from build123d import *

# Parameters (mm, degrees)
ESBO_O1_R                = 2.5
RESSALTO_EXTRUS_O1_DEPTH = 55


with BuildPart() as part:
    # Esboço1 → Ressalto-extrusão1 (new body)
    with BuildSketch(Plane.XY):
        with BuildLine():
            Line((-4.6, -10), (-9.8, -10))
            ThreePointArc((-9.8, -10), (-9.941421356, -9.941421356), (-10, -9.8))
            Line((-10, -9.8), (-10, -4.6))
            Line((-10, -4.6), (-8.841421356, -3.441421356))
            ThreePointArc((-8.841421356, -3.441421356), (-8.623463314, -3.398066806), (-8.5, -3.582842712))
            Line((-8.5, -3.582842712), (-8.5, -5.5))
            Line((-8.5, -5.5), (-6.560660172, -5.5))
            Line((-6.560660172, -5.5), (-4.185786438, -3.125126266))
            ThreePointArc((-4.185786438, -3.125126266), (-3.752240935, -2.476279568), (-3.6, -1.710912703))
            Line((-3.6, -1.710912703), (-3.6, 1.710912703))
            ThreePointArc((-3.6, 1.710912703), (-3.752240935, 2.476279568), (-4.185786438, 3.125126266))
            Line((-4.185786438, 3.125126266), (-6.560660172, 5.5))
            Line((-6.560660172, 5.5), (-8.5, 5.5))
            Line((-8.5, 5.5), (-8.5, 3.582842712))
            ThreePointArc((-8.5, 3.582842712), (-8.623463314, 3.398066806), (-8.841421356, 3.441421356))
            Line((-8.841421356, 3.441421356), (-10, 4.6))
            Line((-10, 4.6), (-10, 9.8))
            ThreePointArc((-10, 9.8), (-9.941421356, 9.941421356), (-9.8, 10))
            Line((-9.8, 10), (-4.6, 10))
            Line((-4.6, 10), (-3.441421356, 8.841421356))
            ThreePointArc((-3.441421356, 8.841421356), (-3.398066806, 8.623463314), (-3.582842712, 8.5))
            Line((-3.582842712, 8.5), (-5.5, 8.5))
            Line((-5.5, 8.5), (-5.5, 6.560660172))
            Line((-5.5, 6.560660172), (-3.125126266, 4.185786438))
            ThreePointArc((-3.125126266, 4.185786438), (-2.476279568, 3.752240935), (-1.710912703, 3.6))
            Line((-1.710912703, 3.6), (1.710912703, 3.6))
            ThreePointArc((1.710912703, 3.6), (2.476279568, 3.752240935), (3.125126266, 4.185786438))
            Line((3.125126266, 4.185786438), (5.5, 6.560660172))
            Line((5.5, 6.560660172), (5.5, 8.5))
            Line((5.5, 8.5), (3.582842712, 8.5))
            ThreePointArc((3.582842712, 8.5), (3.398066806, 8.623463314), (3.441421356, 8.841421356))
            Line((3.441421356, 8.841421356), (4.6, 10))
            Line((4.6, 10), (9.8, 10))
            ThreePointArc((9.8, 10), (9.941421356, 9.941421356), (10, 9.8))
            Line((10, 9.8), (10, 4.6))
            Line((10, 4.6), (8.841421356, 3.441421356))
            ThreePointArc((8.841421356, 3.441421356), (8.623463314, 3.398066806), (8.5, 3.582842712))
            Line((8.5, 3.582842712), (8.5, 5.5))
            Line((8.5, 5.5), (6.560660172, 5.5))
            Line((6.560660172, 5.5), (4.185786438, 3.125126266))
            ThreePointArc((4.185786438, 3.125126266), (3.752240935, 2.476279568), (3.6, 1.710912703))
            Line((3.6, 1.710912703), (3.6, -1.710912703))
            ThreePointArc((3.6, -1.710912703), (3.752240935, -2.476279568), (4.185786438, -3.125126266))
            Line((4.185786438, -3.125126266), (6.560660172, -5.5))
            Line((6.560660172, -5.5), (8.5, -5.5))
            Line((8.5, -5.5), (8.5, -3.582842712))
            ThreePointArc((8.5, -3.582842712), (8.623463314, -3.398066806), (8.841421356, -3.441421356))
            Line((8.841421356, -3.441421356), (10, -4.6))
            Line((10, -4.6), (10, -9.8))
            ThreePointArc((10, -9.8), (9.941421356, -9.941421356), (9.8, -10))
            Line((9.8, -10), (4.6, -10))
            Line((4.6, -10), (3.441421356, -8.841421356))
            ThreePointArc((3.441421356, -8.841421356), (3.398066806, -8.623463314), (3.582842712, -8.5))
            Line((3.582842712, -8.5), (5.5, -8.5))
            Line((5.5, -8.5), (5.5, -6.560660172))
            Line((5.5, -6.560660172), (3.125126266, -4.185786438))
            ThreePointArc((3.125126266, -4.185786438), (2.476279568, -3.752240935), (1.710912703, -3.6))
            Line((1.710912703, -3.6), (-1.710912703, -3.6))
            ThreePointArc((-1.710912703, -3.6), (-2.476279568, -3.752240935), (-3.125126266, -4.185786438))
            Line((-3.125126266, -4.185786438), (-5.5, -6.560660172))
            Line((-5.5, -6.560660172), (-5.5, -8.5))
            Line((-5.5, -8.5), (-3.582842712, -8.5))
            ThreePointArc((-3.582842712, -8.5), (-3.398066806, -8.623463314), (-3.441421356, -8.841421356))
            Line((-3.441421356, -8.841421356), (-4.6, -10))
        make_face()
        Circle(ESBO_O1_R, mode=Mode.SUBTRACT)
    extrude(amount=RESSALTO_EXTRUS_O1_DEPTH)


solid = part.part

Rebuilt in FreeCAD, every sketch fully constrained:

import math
import FreeCAD as App
import Part
import Sketcher

V = App.Vector

doc = App.newDocument("Part")
body = doc.addObject("PartDesign::Body", "Body")

sketch1 = doc.addObject("Sketcher::SketchObject", "Sketch")
body.addObject(sketch1)
sketch1.AttachmentSupport = (doc.XY_Plane, [""])
sketch1.MapMode = "FlatFace"
sketch1.addGeometry(Part.LineSegment(V(-9.8, -10, 0), V(-4.6, -10, 0)), False)
sketch1.addGeometry(Part.LineSegment(V(-4.6, -10, 0), V(-3.44, -8.84, 0)), False)
sketch1.addGeometry(Part.ArcOfCircle(Part.Circle(V(-3.58, -8.7, 0), V(0, 0, 1), 0.2), math.radians(-45), math.radians(90)), False)
sketch1.addGeometry(Part.LineSegment(V(-3.58, -8.5, 0), V(-5.5, -8.5, 0)), False)
sketch1.addGeometry(Part.LineSegment(V(-5.5, -8.5, 0), V(-5.5, -6.56, 0)), False)
sketch1.addGeometry(Part.LineSegment(V(-5.5, -6.56, 0), V(-3.13, -4.19, 0)), False)
sketch1.addGeometry(Part.ArcOfCircle(Part.Circle(V(-1.71, -5.6, 0), V(0, 0, 1), 2), math.radians(90), math.radians(135)), False)
sketch1.addGeometry(Part.LineSegment(V(-1.71, -3.6, 0), V(1.71, -3.6, 0)), False)
sketch1.addGeometry(Part.ArcOfCircle(Part.Circle(V(1.71, -5.6, 0), V(0, 0, 1), 2), math.radians(45), math.radians(90)), False)
sketch1.addGeometry(Part.LineSegment(V(3.13, -4.19, 0), V(5.5, -6.56, 0)), False)
sketch1.addGeometry(Part.LineSegment(V(5.5, -6.56, 0), V(5.5, -8.5, 0)), False)
sketch1.addGeometry(Part.LineSegment(V(5.5, -8.5, 0), V(3.58, -8.5, 0)), False)
sketch1.addGeometry(Part.ArcOfCircle(Part.Circle(V(3.58, -8.7, 0), V(0, 0, 1), 0.2), math.radians(90), math.radians(225)), False)
sketch1.addGeometry(Part.LineSegment(V(3.44, -8.84, 0), V(4.6, -10, 0)), False)
sketch1.addGeometry(Part.LineSegment(V(4.6, -10, 0), V(9.8, -10, 0)), False)
sketch1.addGeometry(Part.ArcOfCircle(Part.Circle(V(9.8, -9.8, 0), V(0, 0, 1), 0.2), math.radians(-90), math.radians(0)), False)
sketch1.addGeometry(Part.LineSegment(V(10, -9.8, 0), V(10, -4.6, 0)), False)
sketch1.addGeometry(Part.LineSegment(V(10, -4.6, 0), V(8.84, -3.44, 0)), False)
sketch1.addGeometry(Part.ArcOfCircle(Part.Circle(V(8.7, -3.58, 0), V(0, 0, 1), 0.2), math.radians(45), math.radians(180)), False)
sketch1.addGeometry(Part.LineSegment(V(8.5, -3.58, 0), V(8.5, -5.5, 0)), False)
sketch1.addGeometry(Part.LineSegment(V(8.5, -5.5, 0), V(6.56, -5.5, 0)), False)
sketch1.addGeometry(Part.LineSegment(V(6.56, -5.5, 0), V(4.19, -3.13, 0)), False)
sketch1.addGeometry(Part.ArcOfCircle(Part.Circle(V(5.6, -1.71, 0), V(0, 0, 1), 2), math.radians(180), math.radians(225)), False)
sketch1.addGeometry(Part.LineSegment(V(3.6, -1.71, 0), V(3.6, 1.71, 0)), False)
sketch1.addGeometry(Part.ArcOfCircle(Part.Circle(V(5.6, 1.71, 0), V(0, 0, 1), 2), math.radians(135), math.radians(180)), False)
sketch1.addGeometry(Part.LineSegment(V(4.19, 3.13, 0), V(6.56, 5.5, 0)), False)
sketch1.addGeometry(Part.LineSegment(V(6.56, 5.5, 0), V(8.5, 5.5, 0)), False)
sketch1.addGeometry(Part.LineSegment(V(8.5, 5.5, 0), V(8.5, 3.58, 0)), False)
sketch1.addGeometry(Part.ArcOfCircle(Part.Circle(V(8.7, 3.58, 0), V(0, 0, 1), 0.2), math.radians(-180), math.radians(-45)), False)
sketch1.addGeometry(Part.LineSegment(V(8.84, 3.44, 0), V(10, 4.6, 0)), False)
sketch1.addGeometry(Part.LineSegment(V(10, 4.6, 0), V(10, 9.8, 0)), False)
sketch1.addGeometry(Part.ArcOfCircle(Part.Circle(V(9.8, 9.8, 0), V(0, 0, 1), 0.2), math.radians(0), math.radians(90)), False)
sketch1.addGeometry(Part.LineSegment(V(9.8, 10, 0), V(4.6, 10, 0)), False)
sketch1.addGeometry(Part.LineSegment(V(4.6, 10, 0), V(3.44, 8.84, 0)), False)
sketch1.addGeometry(Part.ArcOfCircle(Part.Circle(V(3.58, 8.7, 0), V(0, 0, 1), 0.2), math.radians(135), math.radians(270)), False)
sketch1.addGeometry(Part.LineSegment(V(3.58, 8.5, 0), V(5.5, 8.5, 0)), False)
sketch1.addGeometry(Part.LineSegment(V(5.5, 8.5, 0), V(5.5, 6.56, 0)), False)
sketch1.addGeometry(Part.LineSegment(V(5.5, 6.56, 0), V(3.13, 4.19, 0)), False)
sketch1.addGeometry(Part.ArcOfCircle(Part.Circle(V(1.71, 5.6, 0), V(0, 0, 1), 2), math.radians(-90), math.radians(-45)), False)
sketch1.addGeometry(Part.LineSegment(V(1.71, 3.6, 0), V(-1.71, 3.6, 0)), False)
sketch1.addGeometry(Part.ArcOfCircle(Part.Circle(V(-1.71, 5.6, 0), V(0, 0, 1), 2), math.radians(-135), math.radians(-90)), False)
sketch1.addGeometry(Part.LineSegment(V(-3.13, 4.19, 0), V(-5.5, 6.56, 0)), False)
sketch1.addGeometry(Part.LineSegment(V(-5.5, 6.56, 0), V(-5.5, 8.5, 0)), False)
sketch1.addGeometry(Part.LineSegment(V(-5.5, 8.5, 0), V(-3.58, 8.5, 0)), False)
sketch1.addGeometry(Part.ArcOfCircle(Part.Circle(V(-3.58, 8.7, 0), V(0, 0, 1), 0.2), math.radians(-90), math.radians(45)), False)
sketch1.addGeometry(Part.LineSegment(V(-3.44, 8.84, 0), V(-4.6, 10, 0)), False)
sketch1.addGeometry(Part.LineSegment(V(-4.6, 10, 0), V(-9.8, 10, 0)), False)
sketch1.addGeometry(Part.ArcOfCircle(Part.Circle(V(-9.8, 9.8, 0), V(0, 0, 1), 0.2), math.radians(90), math.radians(180)), False)
sketch1.addGeometry(Part.LineSegment(V(-10, 9.8, 0), V(-10, 4.6, 0)), False)
sketch1.addGeometry(Part.LineSegment(V(-10, 4.6, 0), V(-8.84, 3.44, 0)), False)
sketch1.addGeometry(Part.ArcOfCircle(Part.Circle(V(-8.7, 3.58, 0), V(0, 0, 1), 0.2), math.radians(-135), math.radians(0)), False)
sketch1.addGeometry(Part.LineSegment(V(-8.5, 3.58, 0), V(-8.5, 5.5, 0)), False)
sketch1.addGeometry(Part.LineSegment(V(-8.5, 5.5, 0), V(-6.56, 5.5, 0)), False)
sketch1.addGeometry(Part.LineSegment(V(-6.56, 5.5, 0), V(-4.19, 3.13, 0)), False)
sketch1.addGeometry(Part.ArcOfCircle(Part.Circle(V(-5.6, 1.71, 0), V(0, 0, 1), 2), math.radians(0), math.radians(45)), False)
sketch1.addGeometry(Part.LineSegment(V(-3.6, 1.71, 0), V(-3.6, -1.71, 0)), False)
sketch1.addGeometry(Part.ArcOfCircle(Part.Circle(V(-5.6, -1.71, 0), V(0, 0, 1), 2), math.radians(-45), math.radians(0)), False)
sketch1.addGeometry(Part.LineSegment(V(-4.19, -3.13, 0), V(-6.56, -5.5, 0)), False)
sketch1.addGeometry(Part.LineSegment(V(-6.56, -5.5, 0), V(-8.5, -5.5, 0)), False)
sketch1.addGeometry(Part.LineSegment(V(-8.5, -5.5, 0), V(-8.5, -3.58, 0)), False)
sketch1.addGeometry(Part.ArcOfCircle(Part.Circle(V(-8.7, -3.58, 0), V(0, 0, 1), 0.2), math.radians(0), math.radians(135)), False)
sketch1.addGeometry(Part.LineSegment(V(-8.84, -3.44, 0), V(-10, -4.6, 0)), False)
sketch1.addGeometry(Part.LineSegment(V(-10, -4.6, 0), V(-10, -9.8, 0)), False)
sketch1.addGeometry(Part.ArcOfCircle(Part.Circle(V(-9.8, -9.8, 0), V(0, 0, 1), 0.2), math.radians(-180), math.radians(-90)), False)
sketch1.addGeometry(Part.Circle(V(0, 0, 0), V(0, 0, 1), 2.5), False)
sketch1.addConstraint(Sketcher.Constraint("Coincident", 0, 2, 1, 1))
sketch1.addConstraint(Sketcher.Constraint("Tangent", 1, 2, 2, 1))
sketch1.addConstraint(Sketcher.Constraint("Tangent", 2, 2, 3, 1))
sketch1.addConstraint(Sketcher.Constraint("Coincident", 3, 2, 4, 1))
sketch1.addConstraint(Sketcher.Constraint("Coincident", 4, 2, 5, 1))
sketch1.addConstraint(Sketcher.Constraint("Tangent", 5, 2, 6, 2))
sketch1.addConstraint(Sketcher.Constraint("Tangent", 6, 1, 7, 1))
sketch1.addConstraint(Sketcher.Constraint("Tangent", 7, 2, 8, 2))
sketch1.addConstraint(Sketcher.Constraint("Tangent", 8, 1, 9, 1))
sketch1.addConstraint(Sketcher.Constraint("Coincident", 9, 2, 10, 1))
sketch1.addConstraint(Sketcher.Constraint("Coincident", 10, 2, 11, 1))
sketch1.addConstraint(Sketcher.Constraint("Tangent", 11, 2, 12, 1))
sketch1.addConstraint(Sketcher.Constraint("Tangent", 12, 2, 13, 1))
sketch1.addConstraint(Sketcher.Constraint("Coincident", 13, 2, 14, 1))
sketch1.addConstraint(Sketcher.Constraint("Tangent", 14, 2, 15, 1))
sketch1.addConstraint(Sketcher.Constraint("Tangent", 15, 2, 16, 1))
sketch1.addConstraint(Sketcher.Constraint("Coincident", 16, 2, 17, 1))
sketch1.addConstraint(Sketcher.Constraint("Tangent", 17, 2, 18, 1))
sketch1.addConstraint(Sketcher.Constraint("Tangent", 18, 2, 19, 1))
sketch1.addConstraint(Sketcher.Constraint("Coincident", 19, 2, 20, 1))
sketch1.addConstraint(Sketcher.Constraint("Coincident", 20, 2, 21, 1))
sketch1.addConstraint(Sketcher.Constraint("Tangent", 21, 2, 22, 2))
sketch1.addConstraint(Sketcher.Constraint("Tangent", 22, 1, 23, 1))
sketch1.addConstraint(Sketcher.Constraint("Tangent", 23, 2, 24, 2))
sketch1.addConstraint(Sketcher.Constraint("Tangent", 24, 1, 25, 1))
sketch1.addConstraint(Sketcher.Constraint("Coincident", 25, 2, 26, 1))
sketch1.addConstraint(Sketcher.Constraint("Coincident", 26, 2, 27, 1))
sketch1.addConstraint(Sketcher.Constraint("Tangent", 27, 2, 28, 1))
sketch1.addConstraint(Sketcher.Constraint("Tangent", 28, 2, 29, 1))
sketch1.addConstraint(Sketcher.Constraint("Coincident", 29, 2, 30, 1))
sketch1.addConstraint(Sketcher.Constraint("Tangent", 30, 2, 31, 1))
sketch1.addConstraint(Sketcher.Constraint("Tangent", 31, 2, 32, 1))
sketch1.addConstraint(Sketcher.Constraint("Coincident", 32, 2, 33, 1))
sketch1.addConstraint(Sketcher.Constraint("Tangent", 33, 2, 34, 1))
sketch1.addConstraint(Sketcher.Constraint("Tangent", 34, 2, 35, 1))
sketch1.addConstraint(Sketcher.Constraint("Coincident", 35, 2, 36, 1))
sketch1.addConstraint(Sketcher.Constraint("Coincident", 36, 2, 37, 1))
sketch1.addConstraint(Sketcher.Constraint("Tangent", 37, 2, 38, 2))
sketch1.addConstraint(Sketcher.Constraint("Tangent", 38, 1, 39, 1))
sketch1.addConstraint(Sketcher.Constraint("Tangent", 39, 2, 40, 2))
sketch1.addConstraint(Sketcher.Constraint("Tangent", 40, 1, 41, 1))
sketch1.addConstraint(Sketcher.Constraint("Coincident", 41, 2, 42, 1))
sketch1.addConstraint(Sketcher.Constraint("Coincident", 42, 2, 43, 1))
sketch1.addConstraint(Sketcher.Constraint("Tangent", 43, 2, 44, 1))
sketch1.addConstraint(Sketcher.Constraint("Tangent", 44, 2, 45, 1))
sketch1.addConstraint(Sketcher.Constraint("Coincident", 45, 2, 46, 1))
sketch1.addConstraint(Sketcher.Constraint("Tangent", 46, 2, 47, 1))
sketch1.addConstraint(Sketcher.Constraint("Tangent", 47, 2, 48, 1))
sketch1.addConstraint(Sketcher.Constraint("Coincident", 48, 2, 49, 1))
sketch1.addConstraint(Sketcher.Constraint("Tangent", 49, 2, 50, 1))
sketch1.addConstraint(Sketcher.Constraint("Tangent", 50, 2, 51, 1))
sketch1.addConstraint(Sketcher.Constraint("Coincident", 51, 2, 52, 1))
sketch1.addConstraint(Sketcher.Constraint("Coincident", 52, 2, 53, 1))
sketch1.addConstraint(Sketcher.Constraint("Tangent", 53, 2, 54, 2))
sketch1.addConstraint(Sketcher.Constraint("Tangent", 54, 1, 55, 1))
sketch1.addConstraint(Sketcher.Constraint("Tangent", 55, 2, 56, 2))
sketch1.addConstraint(Sketcher.Constraint("Tangent", 56, 1, 57, 1))
sketch1.addConstraint(Sketcher.Constraint("Coincident", 57, 2, 58, 1))
sketch1.addConstraint(Sketcher.Constraint("Coincident", 58, 2, 59, 1))
sketch1.addConstraint(Sketcher.Constraint("Tangent", 59, 2, 60, 1))
sketch1.addConstraint(Sketcher.Constraint("Tangent", 60, 2, 61, 1))
sketch1.addConstraint(Sketcher.Constraint("Coincident", 61, 2, 62, 1))
sketch1.addConstraint(Sketcher.Constraint("Tangent", 62, 2, 63, 1))
sketch1.addConstraint(Sketcher.Constraint("Tangent", 63, 2, 0, 1))
sketch1.addConstraint(Sketcher.Constraint("Horizontal", 0))
sketch1.addConstraint(Sketcher.Constraint("Horizontal", 3))
sketch1.addConstraint(Sketcher.Constraint("Vertical", 4))
sketch1.addConstraint(Sketcher.Constraint("Horizontal", 7))
sketch1.addConstraint(Sketcher.Constraint("Vertical", 10))
sketch1.addConstraint(Sketcher.Constraint("Horizontal", 11))
sketch1.addConstraint(Sketcher.Constraint("Horizontal", 14))
sketch1.addConstraint(Sketcher.Constraint("Vertical", 16))
sketch1.addConstraint(Sketcher.Constraint("Vertical", 19))
sketch1.addConstraint(Sketcher.Constraint("Horizontal", 20))
sketch1.addConstraint(Sketcher.Constraint("Vertical", 23))
sketch1.addConstraint(Sketcher.Constraint("Horizontal", 26))
sketch1.addConstraint(Sketcher.Constraint("Vertical", 27))
sketch1.addConstraint(Sketcher.Constraint("Vertical", 30))
sketch1.addConstraint(Sketcher.Constraint("Horizontal", 32))
sketch1.addConstraint(Sketcher.Constraint("Horizontal", 35))
sketch1.addConstraint(Sketcher.Constraint("Vertical", 36))
sketch1.addConstraint(Sketcher.Constraint("Horizontal", 39))
sketch1.addConstraint(Sketcher.Constraint("Vertical", 42))
sketch1.addConstraint(Sketcher.Constraint("Horizontal", 43))
sketch1.addConstraint(Sketcher.Constraint("Horizontal", 46))
sketch1.addConstraint(Sketcher.Constraint("Vertical", 48))
sketch1.addConstraint(Sketcher.Constraint("Vertical", 51))
sketch1.addConstraint(Sketcher.Constraint("Horizontal", 52))
sketch1.addConstraint(Sketcher.Constraint("Vertical", 55))
sketch1.addConstraint(Sketcher.Constraint("Horizontal", 58))
sketch1.addConstraint(Sketcher.Constraint("Vertical", 59))
sketch1.addConstraint(Sketcher.Constraint("Vertical", 62))
sketch1.addConstraint(Sketcher.Constraint("Coincident", 64, 3, -1, 1))
sketch1.addConstraint(Sketcher.Constraint("Equal", 6, 8))
sketch1.addConstraint(Sketcher.Constraint("Equal", 2, 12))
sketch1.addConstraint(Sketcher.Constraint("Equal", 12, 15))
sketch1.addConstraint(Sketcher.Constraint("Equal", 15, 18))
sketch1.addConstraint(Sketcher.Constraint("Equal", 8, 22))
sketch1.addConstraint(Sketcher.Constraint("Equal", 22, 24))
sketch1.addConstraint(Sketcher.Constraint("Equal", 18, 28))
sketch1.addConstraint(Sketcher.Constraint("Equal", 28, 31))
sketch1.addConstraint(Sketcher.Constraint("Equal", 31, 34))
sketch1.addConstraint(Sketcher.Constraint("Equal", 24, 38))
sketch1.addConstraint(Sketcher.Constraint("Equal", 38, 40))
sketch1.addConstraint(Sketcher.Constraint("Equal", 34, 44))
sketch1.addConstraint(Sketcher.Constraint("Equal", 44, 47))
sketch1.addConstraint(Sketcher.Constraint("Equal", 47, 50))
sketch1.addConstraint(Sketcher.Constraint("Equal", 40, 54))
sketch1.addConstraint(Sketcher.Constraint("Equal", 54, 56))
sketch1.addConstraint(Sketcher.Constraint("Equal", 50, 60))
sketch1.addConstraint(Sketcher.Constraint("Equal", 60, 63))
sketch1.addConstraint(Sketcher.Constraint("Symmetric", 2, 3, 34, 3, -1, 1))
sketch1.addConstraint(Sketcher.Constraint("Symmetric", 6, 3, 38, 3, -1, 1))
sketch1.addConstraint(Sketcher.Constraint("Symmetric", 12, 3, 44, 3, -1, 1))
sketch1.addConstraint(Sketcher.Constraint("Symmetric", 15, 3, 47, 3, -1, 1))
sketch1.addConstraint(Sketcher.Constraint("Symmetric", 18, 3, 50, 3, -1, 1))
sketch1.addConstraint(Sketcher.Constraint("Symmetric", 22, 3, 54, 3, -1, 1))
sketch1.addConstraint(Sketcher.Constraint("Symmetric", 28, 3, 60, 3, -1, 1))
sketch1.addConstraint(Sketcher.Constraint("Symmetric", 31, 3, 63, 3, -1, 1))
sketch1.addConstraint(Sketcher.Constraint("Symmetric", 4, 2, 36, 2, -1, 1))
sketch1.addConstraint(Sketcher.Constraint("Symmetric", 8, 1, 40, 1, -1, 1))
sketch1.addConstraint(Sketcher.Constraint("Symmetric", 20, 2, 52, 2, -1, 1))
sketch1.addConstraint(Sketcher.Constraint("Symmetric", 24, 1, 56, 1, -1, 1))
sketch1.addConstraint(Sketcher.Constraint("Symmetric", 2, 3, 12, 3, -2))
sketch1.addConstraint(Sketcher.Constraint("Symmetric", 31, 3, 47, 3, -2))
sketch1.addConstraint(Sketcher.Constraint("Symmetric", 28, 3, 50, 3, -2))
sketch1.addConstraint(Sketcher.Constraint("Symmetric", 5, 2, 8, 1, -2))
sketch1.addConstraint(Sketcher.Constraint("Symmetric", 25, 2, 52, 2, -2))
sketch1.addConstraint(Sketcher.Constraint("Parallel", 1, 5))
sketch1.addConstraint(Sketcher.Constraint("Perpendicular", 5, 9))
sketch1.addConstraint(Sketcher.Constraint("Parallel", 9, 13))
sketch1.addConstraint(Sketcher.Constraint("Parallel", 13, 17))
sketch1.addConstraint(Sketcher.Constraint("Parallel", 17, 21))
sketch1.addConstraint(Sketcher.Constraint("Perpendicular", 21, 25))
sketch1.addConstraint(Sketcher.Constraint("Parallel", 25, 29))
sketch1.addConstraint(Sketcher.Constraint("Parallel", 29, 33))
sketch1.addConstraint(Sketcher.Constraint("Parallel", 41, 45))
sketch1.addConstraint(Sketcher.Constraint("Parallel", 45, 49))
sketch1.addConstraint(Sketcher.Constraint("Parallel", 57, 61))
sketch1.addConstraint(Sketcher.Constraint("Horizontal", 4, 2, 9, 2))
sketch1.addConstraint(Sketcher.Constraint("Horizontal", 36, 2, 41, 2))
sketch1.addConstraint(Sketcher.Constraint("Horizontal", 20, 2, 57, 2))
sketch1.addConstraint(Sketcher.Constraint("Equal", 58, 4))
sketch1.addConstraint(Sketcher.Constraint("Equal", 46, 16))
sketch1.addConstraint(Sketcher.Constraint("Equal", 43, 19))
sketch1.addConstraint(Sketcher.Constraint("Equal", 39, 23))
sketch1.addConstraint(Sketcher.Constraint("Equal", 13, 17))
sketch1.addConstraint(Sketcher.Constraint("Equal", 9, 21))
sketch1.addConstraint(Sketcher.Constraint("Diameter", 64, 5.0))
sketch1.addConstraint(Sketcher.Constraint("Radius", 6, 2.0))
sketch1.addConstraint(Sketcher.Constraint("Radius", 2, 0.2))
sketch1.addConstraint(Sketcher.Constraint("DistanceX", 0, 1, 0, 2, 5.2))
sketch1.addConstraint(Sketcher.Constraint("DistanceY", 0, 2, -1, 1, 10.0))
sketch1.addConstraint(Sketcher.Constraint("DistanceY", 2, 3, -1, 1, 8.7))
sketch1.addConstraint(Sketcher.Constraint("DistanceY", 6, 3, -1, 1, 5.6))
sketch1.addConstraint(Sketcher.Constraint("DistanceX", 3, 2, -1, 1, 5.5))
sketch1.addConstraint(Sketcher.Constraint("DistanceX", 20, 2, 20, 1, 1.93934))
pad1 = doc.addObject("PartDesign::Pad", "Pad")
body.addObject(pad1)
pad1.Profile = sketch1
pad1.Length = 55

doc.recompute()
